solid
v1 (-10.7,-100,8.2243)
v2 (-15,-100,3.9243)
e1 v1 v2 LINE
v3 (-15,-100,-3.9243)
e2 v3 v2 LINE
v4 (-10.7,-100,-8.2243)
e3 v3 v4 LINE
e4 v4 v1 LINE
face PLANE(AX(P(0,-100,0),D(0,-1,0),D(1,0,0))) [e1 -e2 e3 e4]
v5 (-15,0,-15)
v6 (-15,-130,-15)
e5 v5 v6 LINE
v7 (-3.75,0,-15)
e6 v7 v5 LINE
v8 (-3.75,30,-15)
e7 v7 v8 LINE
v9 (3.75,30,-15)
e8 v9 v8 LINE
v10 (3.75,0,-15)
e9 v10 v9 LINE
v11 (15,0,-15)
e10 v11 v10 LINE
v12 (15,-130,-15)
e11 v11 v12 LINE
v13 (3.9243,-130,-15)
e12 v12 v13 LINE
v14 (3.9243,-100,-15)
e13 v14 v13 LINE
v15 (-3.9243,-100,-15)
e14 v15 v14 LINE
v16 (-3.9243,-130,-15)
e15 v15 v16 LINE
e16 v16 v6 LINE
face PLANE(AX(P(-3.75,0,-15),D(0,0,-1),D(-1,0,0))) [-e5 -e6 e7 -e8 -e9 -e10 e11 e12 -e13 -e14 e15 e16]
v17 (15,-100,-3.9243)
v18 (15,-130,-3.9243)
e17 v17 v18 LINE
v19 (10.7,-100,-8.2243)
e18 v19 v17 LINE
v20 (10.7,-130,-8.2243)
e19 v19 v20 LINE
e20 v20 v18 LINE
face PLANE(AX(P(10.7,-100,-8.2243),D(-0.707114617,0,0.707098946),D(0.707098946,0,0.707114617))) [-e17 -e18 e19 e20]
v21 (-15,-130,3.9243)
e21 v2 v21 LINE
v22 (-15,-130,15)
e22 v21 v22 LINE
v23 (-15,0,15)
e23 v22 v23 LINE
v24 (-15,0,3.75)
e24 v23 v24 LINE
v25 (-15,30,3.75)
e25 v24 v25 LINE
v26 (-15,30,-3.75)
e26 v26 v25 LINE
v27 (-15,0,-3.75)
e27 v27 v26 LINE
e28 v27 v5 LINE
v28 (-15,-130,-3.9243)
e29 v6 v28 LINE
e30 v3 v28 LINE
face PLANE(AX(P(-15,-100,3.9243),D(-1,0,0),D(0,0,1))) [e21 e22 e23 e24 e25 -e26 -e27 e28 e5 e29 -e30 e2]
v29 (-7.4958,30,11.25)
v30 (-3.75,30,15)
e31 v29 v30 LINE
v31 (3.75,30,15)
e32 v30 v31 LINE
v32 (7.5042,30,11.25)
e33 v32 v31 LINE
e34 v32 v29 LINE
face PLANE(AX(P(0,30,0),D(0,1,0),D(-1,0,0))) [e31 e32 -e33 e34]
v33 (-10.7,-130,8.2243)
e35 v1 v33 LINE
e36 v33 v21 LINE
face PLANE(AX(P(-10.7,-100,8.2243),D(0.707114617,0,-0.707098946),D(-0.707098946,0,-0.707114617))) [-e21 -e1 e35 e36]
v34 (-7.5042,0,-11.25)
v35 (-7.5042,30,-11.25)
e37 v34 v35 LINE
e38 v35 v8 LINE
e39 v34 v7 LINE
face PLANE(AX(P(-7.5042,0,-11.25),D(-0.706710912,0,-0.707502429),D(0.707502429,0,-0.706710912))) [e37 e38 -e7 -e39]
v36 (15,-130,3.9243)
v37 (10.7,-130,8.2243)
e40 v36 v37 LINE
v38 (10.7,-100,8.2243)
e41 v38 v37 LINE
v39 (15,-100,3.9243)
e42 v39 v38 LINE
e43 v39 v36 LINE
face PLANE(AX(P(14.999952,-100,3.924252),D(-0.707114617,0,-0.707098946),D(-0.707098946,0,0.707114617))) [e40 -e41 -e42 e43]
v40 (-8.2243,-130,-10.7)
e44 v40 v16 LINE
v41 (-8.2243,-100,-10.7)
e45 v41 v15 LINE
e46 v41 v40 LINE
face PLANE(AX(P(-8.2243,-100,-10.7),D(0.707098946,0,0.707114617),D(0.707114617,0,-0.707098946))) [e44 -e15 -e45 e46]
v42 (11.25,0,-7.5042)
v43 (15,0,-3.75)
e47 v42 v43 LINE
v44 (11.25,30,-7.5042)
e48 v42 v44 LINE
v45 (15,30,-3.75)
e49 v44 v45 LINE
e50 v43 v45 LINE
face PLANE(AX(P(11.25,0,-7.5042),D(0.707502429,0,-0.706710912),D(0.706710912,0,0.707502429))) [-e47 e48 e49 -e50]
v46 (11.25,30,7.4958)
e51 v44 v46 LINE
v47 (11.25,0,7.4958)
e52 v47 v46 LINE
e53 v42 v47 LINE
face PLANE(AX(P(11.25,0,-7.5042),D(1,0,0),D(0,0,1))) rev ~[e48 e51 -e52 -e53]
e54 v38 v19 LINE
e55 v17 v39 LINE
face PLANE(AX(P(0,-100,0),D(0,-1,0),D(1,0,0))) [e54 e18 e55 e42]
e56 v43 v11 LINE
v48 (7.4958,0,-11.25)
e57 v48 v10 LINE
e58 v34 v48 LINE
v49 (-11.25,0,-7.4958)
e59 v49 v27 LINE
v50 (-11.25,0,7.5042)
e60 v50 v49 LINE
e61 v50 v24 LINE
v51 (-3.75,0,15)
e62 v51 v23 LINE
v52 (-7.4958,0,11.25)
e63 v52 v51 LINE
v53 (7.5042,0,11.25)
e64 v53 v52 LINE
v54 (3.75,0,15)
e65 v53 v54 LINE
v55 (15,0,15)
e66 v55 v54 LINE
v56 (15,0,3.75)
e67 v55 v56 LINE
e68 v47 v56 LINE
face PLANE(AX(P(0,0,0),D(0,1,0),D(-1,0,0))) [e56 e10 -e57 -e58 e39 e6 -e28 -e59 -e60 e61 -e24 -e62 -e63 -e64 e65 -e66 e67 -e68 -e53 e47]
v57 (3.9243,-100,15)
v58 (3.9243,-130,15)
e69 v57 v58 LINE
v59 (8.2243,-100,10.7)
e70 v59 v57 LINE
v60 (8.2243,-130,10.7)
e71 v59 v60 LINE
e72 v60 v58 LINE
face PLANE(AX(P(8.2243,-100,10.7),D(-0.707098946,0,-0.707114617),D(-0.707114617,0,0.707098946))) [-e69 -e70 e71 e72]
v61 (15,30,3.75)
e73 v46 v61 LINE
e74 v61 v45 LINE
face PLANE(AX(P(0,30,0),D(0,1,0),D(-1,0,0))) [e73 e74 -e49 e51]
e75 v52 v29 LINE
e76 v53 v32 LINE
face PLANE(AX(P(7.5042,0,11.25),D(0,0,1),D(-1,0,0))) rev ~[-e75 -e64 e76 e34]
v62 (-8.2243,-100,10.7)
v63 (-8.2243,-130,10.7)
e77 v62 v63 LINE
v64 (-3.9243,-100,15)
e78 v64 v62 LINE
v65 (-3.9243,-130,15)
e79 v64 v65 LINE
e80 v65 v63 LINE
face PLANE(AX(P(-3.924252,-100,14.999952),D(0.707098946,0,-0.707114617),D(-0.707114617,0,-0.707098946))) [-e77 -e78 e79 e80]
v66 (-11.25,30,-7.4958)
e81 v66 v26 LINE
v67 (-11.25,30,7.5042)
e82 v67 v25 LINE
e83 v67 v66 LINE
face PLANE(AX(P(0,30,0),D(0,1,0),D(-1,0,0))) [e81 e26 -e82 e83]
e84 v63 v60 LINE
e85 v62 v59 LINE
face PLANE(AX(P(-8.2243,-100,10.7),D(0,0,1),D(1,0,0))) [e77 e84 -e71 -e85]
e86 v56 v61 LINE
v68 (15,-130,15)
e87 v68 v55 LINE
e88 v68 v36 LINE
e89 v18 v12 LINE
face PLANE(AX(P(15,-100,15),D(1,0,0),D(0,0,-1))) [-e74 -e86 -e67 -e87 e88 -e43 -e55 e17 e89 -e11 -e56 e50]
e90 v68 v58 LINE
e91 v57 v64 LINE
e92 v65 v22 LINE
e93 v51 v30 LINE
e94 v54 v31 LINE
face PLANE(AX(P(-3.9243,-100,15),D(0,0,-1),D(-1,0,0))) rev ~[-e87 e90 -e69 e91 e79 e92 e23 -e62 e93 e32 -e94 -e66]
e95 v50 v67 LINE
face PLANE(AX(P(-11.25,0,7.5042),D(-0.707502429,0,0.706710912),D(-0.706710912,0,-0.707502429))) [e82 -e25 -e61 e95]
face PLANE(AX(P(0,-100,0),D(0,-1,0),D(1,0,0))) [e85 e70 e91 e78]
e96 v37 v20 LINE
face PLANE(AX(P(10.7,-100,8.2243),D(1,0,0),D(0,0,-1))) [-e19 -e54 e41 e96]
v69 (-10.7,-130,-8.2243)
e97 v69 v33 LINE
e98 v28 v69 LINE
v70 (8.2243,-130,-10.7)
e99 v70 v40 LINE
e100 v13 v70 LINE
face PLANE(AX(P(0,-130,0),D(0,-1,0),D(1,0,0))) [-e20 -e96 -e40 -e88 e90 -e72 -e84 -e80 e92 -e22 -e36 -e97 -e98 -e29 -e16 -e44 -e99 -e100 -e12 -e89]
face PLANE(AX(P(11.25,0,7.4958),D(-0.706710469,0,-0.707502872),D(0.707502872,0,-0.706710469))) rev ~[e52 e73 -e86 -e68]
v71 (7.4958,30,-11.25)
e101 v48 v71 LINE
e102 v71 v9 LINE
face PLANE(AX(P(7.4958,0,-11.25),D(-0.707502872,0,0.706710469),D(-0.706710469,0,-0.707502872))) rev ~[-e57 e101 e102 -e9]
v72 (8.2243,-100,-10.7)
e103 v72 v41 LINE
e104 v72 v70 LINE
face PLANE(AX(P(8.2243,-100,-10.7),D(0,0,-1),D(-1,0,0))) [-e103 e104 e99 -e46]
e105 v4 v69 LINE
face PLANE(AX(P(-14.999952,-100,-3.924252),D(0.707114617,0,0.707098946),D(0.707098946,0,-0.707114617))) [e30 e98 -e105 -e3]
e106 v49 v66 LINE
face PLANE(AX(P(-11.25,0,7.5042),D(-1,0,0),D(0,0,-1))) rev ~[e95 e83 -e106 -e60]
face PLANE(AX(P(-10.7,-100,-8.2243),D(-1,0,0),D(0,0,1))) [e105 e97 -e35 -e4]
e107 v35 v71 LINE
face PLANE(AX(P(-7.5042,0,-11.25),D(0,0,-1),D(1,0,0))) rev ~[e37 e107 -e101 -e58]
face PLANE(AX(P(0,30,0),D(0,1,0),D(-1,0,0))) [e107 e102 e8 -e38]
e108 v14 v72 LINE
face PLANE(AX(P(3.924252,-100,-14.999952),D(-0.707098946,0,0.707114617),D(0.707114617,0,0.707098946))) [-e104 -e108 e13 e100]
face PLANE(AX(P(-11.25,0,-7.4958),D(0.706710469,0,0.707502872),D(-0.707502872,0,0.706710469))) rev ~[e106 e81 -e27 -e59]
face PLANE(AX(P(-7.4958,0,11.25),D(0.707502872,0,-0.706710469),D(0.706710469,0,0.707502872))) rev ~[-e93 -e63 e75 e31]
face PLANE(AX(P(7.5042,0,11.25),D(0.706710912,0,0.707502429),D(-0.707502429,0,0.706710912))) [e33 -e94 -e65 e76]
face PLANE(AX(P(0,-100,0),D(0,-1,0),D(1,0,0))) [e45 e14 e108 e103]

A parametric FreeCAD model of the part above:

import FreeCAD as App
import Part
import Sketcher
Q = App.Units.Quantity

doc = App.newDocument("Part")
params = doc.addObject("Spreadsheet::Sheet", "Params")
for row, (alias, value) in enumerate([
    ("sketch1_width", "15 mm"),
    ("sketch1_width2", "7.5 mm"),
    ("pad1_length", "30 mm"),
    ("sketch2_width", "30 mm"),
    ("pad2_length", "70 mm"),
    ("sketch3_width", "30 mm"),
    ("pad3_length", "30 mm"),
    ("pad4_length", "30 mm"),
], start=1):
    params.set(f"A{row}", alias)
    params.set(f"B{row}", "=" + value)
    params.setAlias(f"B{row}", alias)

body = doc.addObject("PartDesign::Body", "Body")
body.AllowCompound = True

# Sketch on XZ plane
sketch1 = body.newObject("Sketcher::SketchObject", "Sketch")
sketch1.AttachmentSupport = (doc.getObject("XZ_Plane"), [""])
sketch1.MapMode = "FlatFace"
sketch1.addGeometry([
    Part.LineSegment(App.Vector(-7, 11, 0), App.Vector(-4, 15, 0)),  # 0
    Part.LineSegment(App.Vector(-4, 15, 0), App.Vector(4, 15, 0)),  # 1
    Part.LineSegment(App.Vector(4, 15, 0), App.Vector(8, 11, 0)),  # 2
    Part.LineSegment(App.Vector(8, 11, 0), App.Vector(-7, 11, 0)),  # 3
    Part.LineSegment(App.Vector(-15, -4, 0), App.Vector(-15, 4, 0)),  # 4
    Part.LineSegment(App.Vector(-15, 4, 0), App.Vector(-11, 8, 0)),  # 5
    Part.LineSegment(App.Vector(-11, 8, 0), App.Vector(-11, -7, 0)),  # 6
    Part.LineSegment(App.Vector(-11, -7, 0), App.Vector(-15, -4, 0)),  # 7
    Part.LineSegment(App.Vector(11, 7, 0), App.Vector(15, 4, 0)),  # 8
    Part.LineSegment(App.Vector(15, 4, 0), App.Vector(15, -4, 0)),  # 9
    Part.LineSegment(App.Vector(15, -4, 0), App.Vector(11, -8, 0)),  # 10
    Part.LineSegment(App.Vector(11, -8, 0), App.Vector(11, 7, 0)),  # 11
    Part.LineSegment(App.Vector(4, -15, 0), App.Vector(-4, -15, 0)),  # 12
    Part.LineSegment(App.Vector(-4, -15, 0), App.Vector(-8, -11, 0)),  # 13
    Part.LineSegment(App.Vector(-8, -11, 0), App.Vector(7, -11, 0)),  # 14
    Part.LineSegment(App.Vector(7, -11, 0), App.Vector(4, -15, 0)),  # 15
], False)
sketch1.addConstraint([
    Sketcher.Constraint("Coincident", 0, 2, 1, 1),
    Sketcher.Constraint("Coincident", 1, 2, 2, 1),
    Sketcher.Constraint("Coincident", 2, 2, 3, 1),
    Sketcher.Constraint("Coincident", 3, 2, 0, 1),
    Sketcher.Constraint("Coincident", 4, 2, 5, 1),
    Sketcher.Constraint("Coincident", 5, 2, 6, 1),
    Sketcher.Constraint("Coincident", 6, 2, 7, 1),
    Sketcher.Constraint("Coincident", 7, 2, 4, 1),
    Sketcher.Constraint("Coincident", 8, 2, 9, 1),
    Sketcher.Constraint("Coincident", 9, 2, 10, 1),
    Sketcher.Constraint("Coincident", 10, 2, 11, 1),
    Sketcher.Constraint("Coincident", 11, 2, 8, 1),
    Sketcher.Constraint("Coincident", 12, 2, 13, 1),
    Sketcher.Constraint("Coincident", 13, 2, 14, 1),
    Sketcher.Constraint("Coincident", 14, 2, 15, 1),
    Sketcher.Constraint("Coincident", 15, 2, 12, 1),
    Sketcher.Constraint("Horizontal", 1),
    Sketcher.Constraint("Horizontal", 3),
    Sketcher.Constraint("Vertical", 4),
    Sketcher.Constraint("Vertical", 6),
    Sketcher.Constraint("Vertical", 9),
    Sketcher.Constraint("Vertical", 11),
    Sketcher.Constraint("Horizontal", 12),
    Sketcher.Constraint("Horizontal", 14),
    Sketcher.Constraint("Symmetric", 7, 2, 8, 2, -1, 1),
    Sketcher.Constraint("Symmetric", 5, 2, 10, 2, -1, 1),
    Sketcher.Constraint("Symmetric", 1, 2, 12, 2, -1, 1),
    Sketcher.Constraint("Symmetric", 2, 2, 13, 2, -1, 1),
    Sketcher.Constraint("Perpendicular", 0, 2),
    Sketcher.Constraint("Perpendicular", 2, 5),
    Sketcher.Constraint("Perpendicular", 5, 7),
    Sketcher.Constraint("Parallel", 7, 8),
    Sketcher.Constraint("Perpendicular", 8, 10),
    Sketcher.Constraint("Perpendicular", 13, 15),
    Sketcher.Constraint("Horizontal", 4, 2, 8, 2),
    Sketcher.Constraint("Vertical", 0, 2, 12, 2),
    Sketcher.Constraint("Vertical", 1, 2, 15, 2),
    Sketcher.Constraint("Equal", 12, 4),
    Sketcher.Constraint("Equal", 14, 6),
    Sketcher.Constraint("DistanceX", 3, 2, 3, 1, Q("15 mm")),
    Sketcher.Constraint("DistanceX", 1, 1, 1, 2, Q("7.5 mm")),
    Sketcher.Constraint("DistanceY", -1, 1, 0, 2, Q("15 mm")),
    Sketcher.Constraint("DistanceX", 4, 2, -1, 1, Q("15 mm")),
    Sketcher.Constraint("Distance", 0, Q("5.3003 mm")),
])
sketch1.setExpression("Constraints[39]", "Params.sketch1_width")
sketch1.setExpression("Constraints[40]", "Params.sketch1_width2")
pad1 = body.newObject("PartDesign::Pad", "Pad")
pad1.Profile = sketch1
pad1.setExpression("Length", "Params.pad1_length")
pad1.Reversed = True

# Sketch on XZ plane
sketch2 = body.newObject("Sketcher::SketchObject", "Sketch001")
sketch2.AttachmentSupport = (doc.getObject("XZ_Plane"), [""])
sketch2.MapMode = "FlatFace"
sketch2.addGeometry([
    Part.LineSegment(App.Vector(-15, 15, 0), App.Vector(15, 15, 0)),
    Part.LineSegment(App.Vector(15, 15, 0), App.Vector(15, -15, 0)),
    Part.LineSegment(App.Vector(15, -15, 0), App.Vector(-15, -15, 0)),
    Part.LineSegment(App.Vector(-15, -15, 0), App.Vector(-15, 15, 0)),
], False)
sketch2.addConstraint([
    Sketcher.Constraint("Coincident", 0, 2, 1, 1),
    Sketcher.Constraint("Coincident", 1, 2, 2, 1),
    Sketcher.Constraint("Coincident", 2, 2, 3, 1),
    Sketcher.Constraint("Coincident", 3, 2, 0, 1),
    Sketcher.Constraint("Horizontal", 0),
    Sketcher.Constraint("Vertical", 1),
    Sketcher.Constraint("Horizontal", 2),
    Sketcher.Constraint("Vertical", 3),
    Sketcher.Constraint("Symmetric", 0, 2, 2, 2, -1, 1),
    Sketcher.Constraint("Equal", 2, 1),
    Sketcher.Constraint("DistanceX", 0, 1, 0, 2, Q("30 mm")),
])
sketch2.setExpression("Constraints[10]", "Params.sketch2_width")
pad2 = body.newObject("PartDesign::Pad", "Pad001")
pad2.Profile = sketch2
pad2.setExpression("Length", "Params.pad2_length")

# Sketch on XZ plane
sketch3 = body.newObject("Sketcher::SketchObject", "Sketch002")
sketch3.AttachmentSupport = (doc.getObject("XZ_Plane"), [""])
sketch3.MapMode = "FlatFace"
sketch3.AttachmentOffset = App.Placement(App.Vector(0, 0, 70), App.Rotation())
sketch3.addGeometry([
    Part.LineSegment(App.Vector(-15, -15, 0), App.Vector(15, -15, 0)),
    Part.LineSegment(App.Vector(15, -15, 0), App.Vector(15, 15, 0)),
    Part.LineSegment(App.Vector(15, 15, 0), App.Vector(-15, 15, 0)),
    Part.LineSegment(App.Vector(-15, 15, 0), App.Vector(-15, -15, 0)),
], False)
sketch3.addConstraint([
    Sketcher.Constraint("Coincident", 0, 2, 1, 1),
    Sketcher.Constraint("Coincident", 1, 2, 2, 1),
    Sketcher.Constraint("Coincident", 2, 2, 3, 1),
    Sketcher.Constraint("Coincident", 3, 2, 0, 1),
    Sketcher.Constraint("Horizontal", 0),
    Sketcher.Constraint("Vertical", 1),
    Sketcher.Constraint("Horizontal", 2),
    Sketcher.Constraint("Vertical", 3),
    Sketcher.Constraint("Symmetric", 0, 2, 2, 2, -1, 1),
    Sketcher.Constraint("Equal", 2, 1),
    Sketcher.Constraint("DistanceX", 0, 1, 0, 2, Q("30 mm")),
])
sketch3.setExpression("Constraints[10]", "Params.sketch3_width")
pad3 = body.newObject("PartDesign::Pad", "Pad002")
pad3.Profile = sketch3
pad3.setExpression("Length", "Params.pad3_length")

# Sketch on XZ plane
sketch4 = body.newObject("Sketcher::SketchObject", "Sketch003")
sketch4.AttachmentSupport = (doc.getObject("XZ_Plane"), [""])
sketch4.MapMode = "FlatFace"
sketch4.AttachmentOffset = App.Placement(App.Vector(0, 0, 100), App.Rotation())
sketch4.addGeometry([
    Part.LineSegment(App.Vector(-15, 15, 0), App.Vector(-15, 4, 0)),  # 0
    Part.LineSegment(App.Vector(-15, 4, 0), App.Vector(-11, 8, 0)),  # 1
    Part.LineSegment(App.Vector(-11, 8, 0), App.Vector(-11, -8, 0)),  # 2
    Part.LineSegment(App.Vector(-11, -8, 0), App.Vector(-15, -4, 0)),  # 3
    Part.LineSegment(App.Vector(-15, -4, 0), App.Vector(-15, -15, 0)),  # 4
    Part.LineSegment(App.Vector(-15, -15, 0), App.Vector(-4, -15, 0)),  # 5
    Part.LineSegment(App.Vector(-4, -15, 0), App.Vector(-8, -11, 0)),  # 6
    Part.LineSegment(App.Vector(-8, -11, 0), App.Vector(8, -11, 0)),  # 7
    Part.LineSegment(App.Vector(8, -11, 0), App.Vector(4, -15, 0)),  # 8
    Part.LineSegment(App.Vector(4, -15, 0), App.Vector(15, -15, 0)),  # 9
    Part.LineSegment(App.Vector(15, -15, 0), App.Vector(15, -4, 0)),  # 10
    Part.LineSegment(App.Vector(15, -4, 0), App.Vector(11, -8, 0)),  # 11
    Part.LineSegment(App.Vector(11, -8, 0), App.Vector(11, 8, 0)),  # 12
    Part.LineSegment(App.Vector(11, 8, 0), App.Vector(15, 4, 0)),  # 13
    Part.LineSegment(App.Vector(15, 4, 0), App.Vector(15, 15, 0)),  # 14
    Part.LineSegment(App.Vector(15, 15, 0), App.Vector(4, 15, 0)),  # 15
    Part.LineSegment(App.Vector(4, 15, 0), App.Vector(8, 11, 0)),  # 16
    Part.LineSegment(App.Vector(8, 11, 0), App.Vector(-8, 11, 0)),  # 17
    Part.LineSegment(App.Vector(-8, 11, 0), App.Vector(-4, 15, 0)),  # 18
    Part.LineSegment(App.Vector(-4, 15, 0), App.Vector(-15, 15, 0)),  # 19
], False)
sketch4.addConstraint([
    Sketcher.Constraint("Coincident", 0, 2, 1, 1),
    Sketcher.Constraint("Coincident", 1, 2, 2, 1),
    Sketcher.Constraint("Coincident", 2, 2, 3, 1),
    Sketcher.Constraint("Coincident", 3, 2, 4, 1),
    Sketcher.Constraint("Coincident", 4, 2, 5, 1),
    Sketcher.Constraint("Coincident", 5, 2, 6, 1),
    Sketcher.Constraint("Coincident", 6, 2, 7, 1),
    Sketcher.Constraint("Coincident", 7, 2, 8, 1),
    Sketcher.Constraint("Coincident", 8, 2, 9, 1),
    Sketcher.Constraint("Coincident", 9, 2, 10, 1),
    Sketcher.Constraint("Coincident", 10, 2, 11, 1),
    Sketcher.Constraint("Coincident", 11, 2, 12, 1),
    Sketcher.Constraint("Coincident", 12, 2, 13, 1),
    Sketcher.Constraint("Coincident", 13, 2, 14, 1),
    Sketcher.Constraint("Coincident", 14, 2, 15, 1),
    Sketcher.Constraint("Coincident", 15, 2, 16, 1),
    Sketcher.Constraint("Coincident", 16, 2, 17, 1),
    Sketcher.Constraint("Coincident", 17, 2, 18, 1),
    Sketcher.Constraint("Coincident", 18, 2, 19, 1),
    Sketcher.Constraint("Coincident", 19, 2, 0, 1),
    Sketcher.Constraint("Vertical", 0),
    Sketcher.Constraint("Vertical", 2),
    Sketcher.Constraint("Vertical", 4),
    Sketcher.Constraint("Horizontal", 5),
    Sketcher.Constraint("Horizontal", 7),
    Sketcher.Constraint("Horizontal", 9),
    Sketcher.Constraint("Vertical", 10),
    Sketcher.Constraint("Vertical", 12),
    Sketcher.Constraint("Vertical", 14),
    Sketcher.Constraint("Horizontal", 15),
    Sketcher.Constraint("Horizontal", 17),
    Sketcher.Constraint("Horizontal", 19),
    Sketcher.Constraint("Symmetric", 0, 2, 10, 2, -1, 1),
    Sketcher.Constraint("Symmetric", 1, 2, 11, 2, -1, 1),
    Sketcher.Constraint("Symmetric", 3, 2, 13, 2, -1, 1),
    Sketcher.Constraint("Symmetric", 5, 2, 15, 2, -1, 1),
    Sketcher.Constraint("Symmetric", 6, 2, 16, 2, -1, 1),
    Sketcher.Constraint("Symmetric", 8, 2, 18, 2, -1, 1),
    Sketcher.Constraint("Symmetric", 5, 2, 8, 2, -2),
    Sketcher.Constraint("Symmetric", 3, 2, 10, 2, -2),
    Sketcher.Constraint("Perpendicular", 1, 3),
    Sketcher.Constraint("Parallel", 3, 6),
    Sketcher.Constraint("Perpendicular", 6, 8),
    Sketcher.Constraint("Perpendicular", 11, 13),
    Sketcher.Constraint("Perpendicular", 16, 18),
    Sketcher.Constraint("Horizontal", 2, 2, 11, 2),
    Sketcher.Constraint("Equal", 19, 0),
    Sketcher.Constraint("Equal", 17, 2),
    Sketcher.Constraint("Equal", 3, 6),
    Sketcher.Constraint("DistanceX", 0, 2, -1, 1, Q("15 mm")),
    Sketcher.Constraint("DistanceX", 1, 2, -1, 1, Q("10.7 mm")),
    Sketcher.Constraint("DistanceX", 5, 1, 5, 2, Q("11.0757 mm")),
])
pad4 = body.newObject("PartDesign::Pad", "Pad003")
pad4.Profile = sketch4
pad4.setExpression("Length", "Params.pad4_length")

doc.recompute()
